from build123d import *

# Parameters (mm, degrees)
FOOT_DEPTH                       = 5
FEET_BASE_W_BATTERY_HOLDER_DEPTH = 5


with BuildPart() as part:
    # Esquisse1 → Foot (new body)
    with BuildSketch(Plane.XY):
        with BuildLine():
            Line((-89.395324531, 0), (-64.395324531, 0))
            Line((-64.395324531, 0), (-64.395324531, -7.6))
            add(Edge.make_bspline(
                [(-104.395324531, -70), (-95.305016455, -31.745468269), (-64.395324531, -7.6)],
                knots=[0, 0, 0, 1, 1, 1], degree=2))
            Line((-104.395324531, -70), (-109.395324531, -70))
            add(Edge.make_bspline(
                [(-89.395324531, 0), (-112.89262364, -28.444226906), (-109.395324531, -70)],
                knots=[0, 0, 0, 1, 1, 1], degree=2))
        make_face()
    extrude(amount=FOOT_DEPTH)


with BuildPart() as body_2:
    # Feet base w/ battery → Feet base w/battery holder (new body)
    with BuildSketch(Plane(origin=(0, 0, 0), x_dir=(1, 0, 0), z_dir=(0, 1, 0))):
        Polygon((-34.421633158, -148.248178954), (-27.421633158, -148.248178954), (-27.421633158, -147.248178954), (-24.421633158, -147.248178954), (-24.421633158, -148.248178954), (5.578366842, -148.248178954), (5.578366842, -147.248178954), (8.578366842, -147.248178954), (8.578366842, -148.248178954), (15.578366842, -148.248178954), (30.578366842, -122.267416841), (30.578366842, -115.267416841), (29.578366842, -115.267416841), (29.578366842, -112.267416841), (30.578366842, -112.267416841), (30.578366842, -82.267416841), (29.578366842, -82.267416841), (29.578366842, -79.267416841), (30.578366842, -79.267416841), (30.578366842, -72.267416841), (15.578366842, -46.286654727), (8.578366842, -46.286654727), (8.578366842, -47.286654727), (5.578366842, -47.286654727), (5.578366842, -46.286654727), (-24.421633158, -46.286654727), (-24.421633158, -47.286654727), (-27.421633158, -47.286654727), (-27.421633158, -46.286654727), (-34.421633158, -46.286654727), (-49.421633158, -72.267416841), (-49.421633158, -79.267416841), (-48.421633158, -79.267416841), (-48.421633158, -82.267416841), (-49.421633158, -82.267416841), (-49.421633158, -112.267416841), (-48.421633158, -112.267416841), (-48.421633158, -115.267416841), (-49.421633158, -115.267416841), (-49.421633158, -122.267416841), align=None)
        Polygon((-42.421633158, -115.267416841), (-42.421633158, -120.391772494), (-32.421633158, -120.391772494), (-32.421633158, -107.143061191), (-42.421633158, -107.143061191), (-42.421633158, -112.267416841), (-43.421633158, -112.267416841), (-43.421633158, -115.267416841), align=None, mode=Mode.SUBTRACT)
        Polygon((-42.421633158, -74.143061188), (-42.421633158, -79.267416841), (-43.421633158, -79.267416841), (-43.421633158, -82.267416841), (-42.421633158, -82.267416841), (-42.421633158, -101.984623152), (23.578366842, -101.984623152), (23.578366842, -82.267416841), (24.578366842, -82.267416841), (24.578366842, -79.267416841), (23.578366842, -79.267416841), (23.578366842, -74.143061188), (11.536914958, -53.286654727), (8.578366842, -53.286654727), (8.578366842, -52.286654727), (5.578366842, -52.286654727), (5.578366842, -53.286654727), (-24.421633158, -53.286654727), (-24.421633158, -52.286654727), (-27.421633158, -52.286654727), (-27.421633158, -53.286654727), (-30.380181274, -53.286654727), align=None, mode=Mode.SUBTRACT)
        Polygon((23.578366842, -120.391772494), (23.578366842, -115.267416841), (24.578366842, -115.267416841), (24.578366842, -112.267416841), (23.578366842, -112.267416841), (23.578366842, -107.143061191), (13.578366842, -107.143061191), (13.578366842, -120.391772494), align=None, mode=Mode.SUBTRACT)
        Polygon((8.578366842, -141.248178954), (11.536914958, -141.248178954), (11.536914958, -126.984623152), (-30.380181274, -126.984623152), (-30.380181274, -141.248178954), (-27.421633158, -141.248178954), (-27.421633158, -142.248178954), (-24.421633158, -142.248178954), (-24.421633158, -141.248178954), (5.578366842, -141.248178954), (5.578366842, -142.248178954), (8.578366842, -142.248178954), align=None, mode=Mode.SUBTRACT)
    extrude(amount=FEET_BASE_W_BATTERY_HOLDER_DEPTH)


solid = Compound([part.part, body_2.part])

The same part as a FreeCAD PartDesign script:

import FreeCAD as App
import Part
import Sketcher
from FreeCAD import Vector
Q = App.Units.Quantity


def add_polygon(sketch, points):
    """Adds a closed chain of lines whose ends are joined by coincident constraints."""
    first, n = sketch.GeometryCount, len(points)
    for a, b in zip(points, points[1:] + points[:1]):
        sketch.addGeometry(Part.LineSegment(App.Vector(*a, 0), App.Vector(*b, 0)), False)
    for i in range(n):
        sketch.addConstraint(Sketcher.Constraint("Coincident", first + i, 2, first + (i + 1) % n, 1))

doc = App.newDocument("Part")
body = doc.addObject("PartDesign::Body", "Body")

# Sketch on XY plane
sketch1 = body.newObject("Sketcher::SketchObject", "Sketch")
sketch1.AttachmentSupport = (doc.getObject("XY_Plane"), [""])
sketch1.MapMode = "FlatFace"
sketch1.addGeometry(Part.LineSegment(Vector(-64.395325, 0, 0), Vector(-89.395325, 0, 0)), False)
sketch1.addGeometry(Part.BSplineCurve([Vector(-89.395325, 0, 0), Vector(-112.892624, -28.444227, 0), Vector(-109.395325, -70, 0)], [3, 3], [0, 1], False, 2, [1, 1, 1], False), False)
sketch1.addGeometry(Part.LineSegment(Vector(-109.395325, -70, 0), Vector(-104.395325, -70, 0)), False)
sketch1.addGeometry(Part.BSplineCurve([Vector(-104.395325, -70, 0), Vector(-95.305016, -31.745468, 0), Vector(-64.395325, -7.6, 0)], [3, 3], [0, 1], False, 2, [1, 1, 1], False), False)
sketch1.addGeometry(Part.LineSegment(Vector(-64.395325, -7.6, 0), Vector(-64.395325, 0, 0)), False)
sketch1.addConstraint(Sketcher.Constraint("Block", 1))
sketch1.addConstraint(Sketcher.Constraint("Block", 3))
sketch1.addConstraint(Sketcher.Constraint("Coincident", 0, 2, 1, 1))
sketch1.addConstraint(Sketcher.Constraint("Coincident", 1, 2, 2, 1))
sketch1.addConstraint(Sketcher.Constraint("Coincident", 2, 2, 3, 1))
sketch1.addConstraint(Sketcher.Constraint("Coincident", 3, 2, 4, 1))
sketch1.addConstraint(Sketcher.Constraint("Coincident", 4, 2, 0, 1))
sketch1.addConstraint(Sketcher.Constraint("Horizontal", 0))
sketch1.addConstraint(Sketcher.Constraint("Vertical", 4))
pad1 = body.newObject("PartDesign::Pad", "Pad")
pad1.Profile = sketch1
pad1.Length = 5
body2 = doc.addObject("PartDesign::Body", "Body001")

# Sketch on XZ plane
sketch2 = body2.newObject("Sketcher::SketchObject", "Sketch001")
sketch2.AttachmentSupport = (doc.getObject("XZ_Plane001"), [""])
sketch2.MapMode = "FlatFace"
add_polygon(sketch2, [(-34.4, 148.2), (-27.4, 148.2), (-27.4, 147.2), (-24.4, 147.2), (-24.4, 148.2), (5.6, 148.2), (5.6, 147.2), (8.6, 147.2), (8.6, 148.2), (15.6, 148.2), (30.6, 122.3), (30.6, 115.3), (29.6, 115.3), (29.6, 112.3), (30.6, 112.3), (30.6, 82.3), (29.6, 82.3), (29.6, 79.3), (30.6, 79.3), (30.6, 72.3), (15.6, 46.3), (8.6, 46.3), (8.6, 47.3), (5.6, 47.3), (5.6, 46.3), (-24.4, 46.3), (-24.4, 47.3), (-27.4, 47.3), (-27.4, 46.3), (-34.4, 46.3), (-49.4, 72.3), (-49.4, 79.3), (-48.4, 79.3), (-48.4, 82.3), (-49.4, 82.3), (-49.4, 112.3), (-48.4, 112.3), (-48.4, 115.3), (-49.4, 115.3), (-49.4, 122.3)])  # lines 0-39
add_polygon(sketch2, [(-42.4, 120.4), (-42.4, 115.3), (-43.4, 115.3), (-43.4, 112.3), (-42.4, 112.3), (-42.4, 107.1), (-32.4, 107.1), (-32.4, 120.4)])  # lines 40-47
add_polygon(sketch2, [(11.5, 141.2), (8.6, 141.2), (8.6, 142.2), (5.6, 142.2), (5.6, 141.2), (-24.4, 141.2), (-24.4, 142.2), (-27.4, 142.2), (-27.4, 141.2), (-30.4, 141.2), (-30.4, 127), (11.5, 127)])  # lines 48-59
add_polygon(sketch2, [(23.6, 115.3), (23.6, 120.4), (13.6, 120.4), (13.6, 107.1), (23.6, 107.1), (23.6, 112.3), (24.6, 112.3), (24.6, 115.3)])  # lines 60-67
add_polygon(sketch2, [(-42.4, 79.3), (-42.4, 74.1), (-30.4, 53.3), (-27.4, 53.3), (-27.4, 52.3), (-24.4, 52.3), (-24.4, 53.3), (5.6, 53.3), (5.6, 52.3), (8.6, 52.3), (8.6, 53.3), (11.5, 53.3), (23.6, 74.1), (23.6, 79.3), (24.6, 79.3), (24.6, 82.3), (23.6, 82.3), (23.6, 102), (-42.4, 102), (-42.4, 82.3), (-43.4, 82.3), (-43.4, 79.3)])  # lines 68-89
sketch2.addConstraint(Sketcher.Constraint("Horizontal", 0))
sketch2.addConstraint(Sketcher.Constraint("Vertical", 1))
sketch2.addConstraint(Sketcher.Constraint("Horizontal", 2))
sketch2.addConstraint(Sketcher.Constraint("Vertical", 3))
sketch2.addConstraint(Sketcher.Constraint("Horizontal", 4))
sketch2.addConstraint(Sketcher.Constraint("Vertical", 5))
sketch2.addConstraint(Sketcher.Constraint("Horizontal", 6))
sketch2.addConstraint(Sketcher.Constraint("Vertical", 7))
sketch2.addConstraint(Sketcher.Constraint("Horizontal", 8))
sketch2.addConstraint(Sketcher.Constraint("Vertical", 10))
sketch2.addConstraint(Sketcher.Constraint("Horizontal", 11))
sketch2.addConstraint(Sketcher.Constraint("Vertical", 12))
sketch2.addConstraint(Sketcher.Constraint("Horizontal", 13))
sketch2.addConstraint(Sketcher.Constraint("Vertical", 14))
sketch2.addConstraint(Sketcher.Constraint("Horizontal", 15))
sketch2.addConstraint(Sketcher.Constraint("Vertical", 16))
sketch2.addConstraint(Sketcher.Constraint("Horizontal", 17))
sketch2.addConstraint(Sketcher.Constraint("Vertical", 18))
sketch2.addConstraint(Sketcher.Constraint("Horizontal", 20))
sketch2.addConstraint(Sketcher.Constraint("Vertical", 21))
sketch2.addConstraint(Sketcher.Constraint("Horizontal", 22))
sketch2.addConstraint(Sketcher.Constraint("Vertical", 23))
sketch2.addConstraint(Sketcher.Constraint("Horizontal", 24))
sketch2.addConstraint(Sketcher.Constraint("Vertical", 25))
sketch2.addConstraint(Sketcher.Constraint("Horizontal", 26))
sketch2.addConstraint(Sketcher.Constraint("Vertical", 27))
sketch2.addConstraint(Sketcher.Constraint("Horizontal", 28))
sketch2.addConstraint(Sketcher.Constraint("Vertical", 30))
sketch2.addConstraint(Sketcher.Constraint("Horizontal", 31))
sketch2.addConstraint(Sketcher.Constraint("Vertical", 32))
sketch2.addConstraint(Sketcher.Constraint("Horizontal", 33))
sketch2.addConstraint(Sketcher.Constraint("Vertical", 34))
sketch2.addConstraint(Sketcher.Constraint("Horizontal", 35))
sketch2.addConstraint(Sketcher.Constraint("Vertical", 36))
sketch2.addConstraint(Sketcher.Constraint("Horizontal", 37))
sketch2.addConstraint(Sketcher.Constraint("Vertical", 38))
sketch2.addConstraint(Sketcher.Constraint("Vertical", 40))
sketch2.addConstraint(Sketcher.Constraint("Horizontal", 41))
sketch2.addConstraint(Sketcher.Constraint("Vertical", 42))
sketch2.addConstraint(Sketcher.Constraint("Horizontal", 43))
sketch2.addConstraint(Sketcher.Constraint("Vertical", 44))
sketch2.addConstraint(Sketcher.Constraint("Horizontal", 45))
sketch2.addConstraint(Sketcher.Constraint("Vertical", 46))
sketch2.addConstraint(Sketcher.Constraint("Horizontal", 47))
sketch2.addConstraint(Sketcher.Constraint("Horizontal", 48))
sketch2.addConstraint(Sketcher.Constraint("Vertical", 49))
sketch2.addConstraint(Sketcher.Constraint("Horizontal", 50))
sketch2.addConstraint(Sketcher.Constraint("Vertical", 51))
sketch2.addConstraint(Sketcher.Constraint("Horizontal", 52))
sketch2.addConstraint(Sketcher.Constraint("Vertical", 53))
sketch2.addConstraint(Sketcher.Constraint("Horizontal", 54))
sketch2.addConstraint(Sketcher.Constraint("Vertical", 55))
sketch2.addConstraint(Sketcher.Constraint("Horizontal", 56))
sketch2.addConstraint(Sketcher.Constraint("Vertical", 57))
sketch2.addConstraint(Sketcher.Constraint("Horizontal", 58))
sketch2.addConstraint(Sketcher.Constraint("Vertical", 59))
sketch2.addConstraint(Sketcher.Constraint("Vertical", 60))
sketch2.addConstraint(Sketcher.Constraint("Horizontal", 61))
sketch2.addConstraint(Sketcher.Constraint("Vertical", 62))
sketch2.addConstraint(Sketcher.Constraint("Horizontal", 63))
sketch2.addConstraint(Sketcher.Constraint("Vertical", 64))
sketch2.addConstraint(Sketcher.Constraint("Horizontal", 65))
sketch2.addConstraint(Sketcher.Constraint("Vertical", 66))
sketch2.addConstraint(Sketcher.Constraint("Horizontal", 67))
sketch2.addConstraint(Sketcher.Constraint("Vertical", 68))
sketch2.addConstraint(Sketcher.Constraint("Horizontal", 70))
sketch2.addConstraint(Sketcher.Constraint("Vertical", 71))
sketch2.addConstraint(Sketcher.Constraint("Horizontal", 72))
sketch2.addConstraint(Sketcher.Constraint("Vertical", 73))
sketch2.addConstraint(Sketcher.Constraint("Horizontal", 74))
sketch2.addConstraint(Sketcher.Constraint("Vertical", 75))
sketch2.addConstraint(Sketcher.Constraint("Horizontal", 76))
sketch2.addConstraint(Sketcher.Constraint("Vertical", 77))
sketch2.addConstraint(Sketcher.Constraint("Horizontal", 78))
sketch2.addConstraint(Sketcher.Constraint("Vertical", 80))
sketch2.addConstraint(Sketcher.Constraint("Horizontal", 81))
sketch2.addConstraint(Sketcher.Constraint("Vertical", 82))
sketch2.addConstraint(Sketcher.Constraint("Horizontal", 83))
sketch2.addConstraint(Sketcher.Constraint("Vertical", 84))
sketch2.addConstraint(Sketcher.Constraint("Horizontal", 85))
sketch2.addConstraint(Sketcher.Constraint("Vertical", 86))
sketch2.addConstraint(Sketcher.Constraint("Horizontal", 87))
sketch2.addConstraint(Sketcher.Constraint("Vertical", 88))
sketch2.addConstraint(Sketcher.Constraint("Horizontal", 89))
sketch2.addConstraint(Sketcher.Constraint("Parallel", 9, 29))
sketch2.addConstraint(Sketcher.Constraint("Parallel", 19, 39))
sketch2.addConstraint(Sketcher.Constraint("Parallel", 29, 69))
sketch2.addConstraint(Sketcher.Constraint("Parallel", 39, 79))
sketch2.addConstraint(Sketcher.Constraint("Horizontal", 0, 2, 3, 2))
sketch2.addConstraint(Sketcher.Constraint("Horizontal", 2, 2, 5, 2))
sketch2.addConstraint(Sketcher.Constraint("Horizontal", 4, 2, 7, 2))
sketch2.addConstraint(Sketcher.Constraint("Horizontal", 20, 2, 23, 2))
sketch2.addConstraint(Sketcher.Constraint("Horizontal", 22, 2, 25, 2))
sketch2.addConstraint(Sketcher.Constraint("Horizontal", 24, 2, 27, 2))
sketch2.addConstraint(Sketcher.Constraint("Horizontal", 18, 2, 29, 2))
sketch2.addConstraint(Sketcher.Constraint("Horizontal", 17, 2, 30, 2))
sketch2.addConstraint(Sketcher.Constraint("Horizontal", 15, 2, 32, 2))
sketch2.addConstraint(Sketcher.Constraint("Horizontal", 13, 2, 34, 2))
sketch2.addConstraint(Sketcher.Constraint("Horizontal", 11, 2, 36, 2))
sketch2.addConstraint(Sketcher.Constraint("Horizontal", 9, 2, 38, 2))
sketch2.addConstraint(Sketcher.Constraint("Horizontal", 37, 2, 40, 2))
sketch2.addConstraint(Sketcher.Constraint("Horizontal", 35, 2, 42, 2))
sketch2.addConstraint(Sketcher.Constraint("Horizontal", 48, 2, 51, 2))
sketch2.addConstraint(Sketcher.Constraint("Horizontal", 50, 2, 53, 2))
sketch2.addConstraint(Sketcher.Constraint("Horizontal", 52, 2, 55, 2))
sketch2.addConstraint(Sketcher.Constraint("Horizontal", 47, 2, 60, 2))
sketch2.addConstraint(Sketcher.Constraint("Horizontal", 45, 2, 62, 2))
sketch2.addConstraint(Sketcher.Constraint("Horizontal", 43, 2, 64, 2))
sketch2.addConstraint(Sketcher.Constraint("Horizontal", 41, 2, 66, 2))
sketch2.addConstraint(Sketcher.Constraint("Horizontal", 70, 2, 73, 2))
sketch2.addConstraint(Sketcher.Constraint("Horizontal", 72, 2, 75, 2))
sketch2.addConstraint(Sketcher.Constraint("Horizontal", 74, 2, 77, 2))
sketch2.addConstraint(Sketcher.Constraint("Horizontal", 68, 2, 79, 2))
sketch2.addConstraint(Sketcher.Constraint("Horizontal", 31, 2, 80, 2))
sketch2.addConstraint(Sketcher.Constraint("Horizontal", 33, 2, 82, 2))
sketch2.addConstraint(Sketcher.Constraint("Horizontal", 83, 2, 86, 2))
sketch2.addConstraint(Sketcher.Constraint("Horizontal", 81, 2, 88, 2))
sketch2.addConstraint(Sketcher.Constraint("Vertical", 10, 2, 13, 2))
sketch2.addConstraint(Sketcher.Constraint("Vertical", 12, 2, 15, 2))
sketch2.addConstraint(Sketcher.Constraint("Vertical", 14, 2, 17, 2))
sketch2.addConstraint(Sketcher.Constraint("Vertical", 8, 2, 19, 2))
sketch2.addConstraint(Sketcher.Constraint("Vertical", 7, 2, 20, 2))
sketch2.addConstraint(Sketcher.Constraint("Vertical", 5, 2, 22, 2))
sketch2.addConstraint(Sketcher.Constraint("Vertical", 3, 2, 24, 2))
sketch2.addConstraint(Sketcher.Constraint("Vertical", 1, 2, 26, 2))
sketch2.addConstraint(Sketcher.Constraint("Vertical", 30, 2, 33, 2))
sketch2.addConstraint(Sketcher.Constraint("Vertical", 32, 2, 35, 2))
sketch2.addConstraint(Sketcher.Constraint("Vertical", 34, 2, 37, 2))
sketch2.addConstraint(Sketcher.Constraint("Vertical", 28, 2, 39, 2))
sketch2.addConstraint(Sketcher.Constraint("Vertical", 40, 2, 43, 2))
sketch2.addConstraint(Sketcher.Constraint("Vertical", 21, 2, 48, 2))
sketch2.addConstraint(Sketcher.Constraint("Vertical", 23, 2, 50, 2))
sketch2.addConstraint(Sketcher.Constraint("Vertical", 25, 2, 52, 2))
sketch2.addConstraint(Sketcher.Constraint("Vertical", 27, 2, 54, 2))
sketch2.addConstraint(Sketcher.Constraint("Vertical", 60, 2, 63, 2))
sketch2.addConstraint(Sketcher.Constraint("Vertical", 47, 2, 68, 2))
sketch2.addConstraint(Sketcher.Constraint("Vertical", 57, 2, 69, 2))
sketch2.addConstraint(Sketcher.Constraint("Vertical", 55, 2, 70, 2))
sketch2.addConstraint(Sketcher.Constraint("Vertical", 53, 2, 72, 2))
sketch2.addConstraint(Sketcher.Constraint("Vertical", 51, 2, 74, 2))
sketch2.addConstraint(Sketcher.Constraint("Vertical", 49, 2, 76, 2))
sketch2.addConstraint(Sketcher.Constraint("Vertical", 59, 2, 78, 2))
sketch2.addConstraint(Sketcher.Constraint("Vertical", 67, 2, 79, 2))
sketch2.addConstraint(Sketcher.Constraint("Vertical", 66, 2, 81, 2))
sketch2.addConstraint(Sketcher.Constraint("Vertical", 80, 2, 83, 2))
sketch2.addConstraint(Sketcher.Constraint("Vertical", 68, 2, 85, 2))
sketch2.addConstraint(Sketcher.Constraint("Vertical", 42, 2, 87, 2))
sketch2.addConstraint(Sketcher.Constraint("Equal", 2, 6))
sketch2.addConstraint(Sketcher.Constraint("Equal", 0, 8))
sketch2.addConstraint(Sketcher.Constraint("Equal", 17, 31))
sketch2.addConstraint(Sketcher.Constraint("Equal", 37, 41))
sketch2.addConstraint(Sketcher.Constraint("Equal", 48, 56))
sketch2.addConstraint(Sketcher.Constraint("Equal", 47, 61))
sketch2.addConstraint(Sketcher.Constraint("Equal", 43, 65))
sketch2.addConstraint(Sketcher.Constraint("Equal", 89, 1))
sketch2.addConstraint(Sketcher.Constraint("Equal", 28, 10))
sketch2.addConstraint(Sketcher.Constraint("Equal", 76, 12))
sketch2.addConstraint(Sketcher.Constraint("Equal", 74, 14))
sketch2.addConstraint(Sketcher.Constraint("Equal", 12, 16))
sketch2.addConstraint(Sketcher.Constraint("Equal", 10, 18))
sketch2.addConstraint(Sketcher.Constraint("Equal", 7, 21))
sketch2.addConstraint(Sketcher.Constraint("Equal", 40, 44))
sketch2.addConstraint(Sketcher.Constraint("Equal", 27, 49))
sketch2.addConstraint(Sketcher.Constraint("Equal", 64, 68))
sketch2.addConstraint(Sketcher.Constraint("Equal", 55, 71))
sketch2.addConstraint(Sketcher.Constraint("DistanceX", 0, 1, 0, 2, Q("7 mm")))
sketch2.addConstraint(Sketcher.Constraint("DistanceX", 2, 1, 2, 2, Q("3 mm")))
sketch2.addConstraint(Sketcher.Constraint("DistanceX", 4, 1, 4, 2, Q("30 mm")))
sketch2.addConstraint(Sketcher.Constraint("DistanceX", 11, 2, 11, 1, Q("1 mm")))
sketch2.addConstraint(Sketcher.Constraint("DistanceX", 45, 1, 45, 2, Q("10 mm")))
sketch2.addConstraint(Sketcher.Constraint("DistanceX", 85, 2, 85, 1, Q("66 mm")))
sketch2.addConstraint(Sketcher.Constraint("Angle", 9, Q("-60 deg")))
sketch2.addConstraint(Sketcher.Constraint("Distance", 9, Q("30 mm")))
sketch2.addConstraint(Sketcher.Constraint("DistanceX", 48, 2, 48, 1, Q("2.958548 mm")))
sketch2.addConstraint(Sketcher.Constraint("DistanceY", 46, 1, 46, 2, Q("13.248711 mm")))
sketch2.addConstraint(Sketcher.Constraint("DistanceY", 57, 2, 57, 1, Q("14.263556 mm")))
sketch2.addConstraint(Sketcher.Constraint("DistanceY", 84, 1, 84, 2, Q("19.717206 mm")))
sketch2.addConstraint(Sketcher.Constraint("DistanceY", -1, 1, 0, 2, Q("148.248179 mm")))
sketch2.addConstraint(Sketcher.Constraint("DistanceY", -1, 1, 48, 2, Q("141.248179 mm")))
sketch2.addConstraint(Sketcher.Constraint("DistanceX", 56, 2, -1, 1, Q("30.380181 mm")))
pad2 = body2.newObject("PartDesign::Pad", "Pad001")
pad2.Profile = sketch2
pad2.Length = 5
pad2.Reversed = True

doc.recompute()
